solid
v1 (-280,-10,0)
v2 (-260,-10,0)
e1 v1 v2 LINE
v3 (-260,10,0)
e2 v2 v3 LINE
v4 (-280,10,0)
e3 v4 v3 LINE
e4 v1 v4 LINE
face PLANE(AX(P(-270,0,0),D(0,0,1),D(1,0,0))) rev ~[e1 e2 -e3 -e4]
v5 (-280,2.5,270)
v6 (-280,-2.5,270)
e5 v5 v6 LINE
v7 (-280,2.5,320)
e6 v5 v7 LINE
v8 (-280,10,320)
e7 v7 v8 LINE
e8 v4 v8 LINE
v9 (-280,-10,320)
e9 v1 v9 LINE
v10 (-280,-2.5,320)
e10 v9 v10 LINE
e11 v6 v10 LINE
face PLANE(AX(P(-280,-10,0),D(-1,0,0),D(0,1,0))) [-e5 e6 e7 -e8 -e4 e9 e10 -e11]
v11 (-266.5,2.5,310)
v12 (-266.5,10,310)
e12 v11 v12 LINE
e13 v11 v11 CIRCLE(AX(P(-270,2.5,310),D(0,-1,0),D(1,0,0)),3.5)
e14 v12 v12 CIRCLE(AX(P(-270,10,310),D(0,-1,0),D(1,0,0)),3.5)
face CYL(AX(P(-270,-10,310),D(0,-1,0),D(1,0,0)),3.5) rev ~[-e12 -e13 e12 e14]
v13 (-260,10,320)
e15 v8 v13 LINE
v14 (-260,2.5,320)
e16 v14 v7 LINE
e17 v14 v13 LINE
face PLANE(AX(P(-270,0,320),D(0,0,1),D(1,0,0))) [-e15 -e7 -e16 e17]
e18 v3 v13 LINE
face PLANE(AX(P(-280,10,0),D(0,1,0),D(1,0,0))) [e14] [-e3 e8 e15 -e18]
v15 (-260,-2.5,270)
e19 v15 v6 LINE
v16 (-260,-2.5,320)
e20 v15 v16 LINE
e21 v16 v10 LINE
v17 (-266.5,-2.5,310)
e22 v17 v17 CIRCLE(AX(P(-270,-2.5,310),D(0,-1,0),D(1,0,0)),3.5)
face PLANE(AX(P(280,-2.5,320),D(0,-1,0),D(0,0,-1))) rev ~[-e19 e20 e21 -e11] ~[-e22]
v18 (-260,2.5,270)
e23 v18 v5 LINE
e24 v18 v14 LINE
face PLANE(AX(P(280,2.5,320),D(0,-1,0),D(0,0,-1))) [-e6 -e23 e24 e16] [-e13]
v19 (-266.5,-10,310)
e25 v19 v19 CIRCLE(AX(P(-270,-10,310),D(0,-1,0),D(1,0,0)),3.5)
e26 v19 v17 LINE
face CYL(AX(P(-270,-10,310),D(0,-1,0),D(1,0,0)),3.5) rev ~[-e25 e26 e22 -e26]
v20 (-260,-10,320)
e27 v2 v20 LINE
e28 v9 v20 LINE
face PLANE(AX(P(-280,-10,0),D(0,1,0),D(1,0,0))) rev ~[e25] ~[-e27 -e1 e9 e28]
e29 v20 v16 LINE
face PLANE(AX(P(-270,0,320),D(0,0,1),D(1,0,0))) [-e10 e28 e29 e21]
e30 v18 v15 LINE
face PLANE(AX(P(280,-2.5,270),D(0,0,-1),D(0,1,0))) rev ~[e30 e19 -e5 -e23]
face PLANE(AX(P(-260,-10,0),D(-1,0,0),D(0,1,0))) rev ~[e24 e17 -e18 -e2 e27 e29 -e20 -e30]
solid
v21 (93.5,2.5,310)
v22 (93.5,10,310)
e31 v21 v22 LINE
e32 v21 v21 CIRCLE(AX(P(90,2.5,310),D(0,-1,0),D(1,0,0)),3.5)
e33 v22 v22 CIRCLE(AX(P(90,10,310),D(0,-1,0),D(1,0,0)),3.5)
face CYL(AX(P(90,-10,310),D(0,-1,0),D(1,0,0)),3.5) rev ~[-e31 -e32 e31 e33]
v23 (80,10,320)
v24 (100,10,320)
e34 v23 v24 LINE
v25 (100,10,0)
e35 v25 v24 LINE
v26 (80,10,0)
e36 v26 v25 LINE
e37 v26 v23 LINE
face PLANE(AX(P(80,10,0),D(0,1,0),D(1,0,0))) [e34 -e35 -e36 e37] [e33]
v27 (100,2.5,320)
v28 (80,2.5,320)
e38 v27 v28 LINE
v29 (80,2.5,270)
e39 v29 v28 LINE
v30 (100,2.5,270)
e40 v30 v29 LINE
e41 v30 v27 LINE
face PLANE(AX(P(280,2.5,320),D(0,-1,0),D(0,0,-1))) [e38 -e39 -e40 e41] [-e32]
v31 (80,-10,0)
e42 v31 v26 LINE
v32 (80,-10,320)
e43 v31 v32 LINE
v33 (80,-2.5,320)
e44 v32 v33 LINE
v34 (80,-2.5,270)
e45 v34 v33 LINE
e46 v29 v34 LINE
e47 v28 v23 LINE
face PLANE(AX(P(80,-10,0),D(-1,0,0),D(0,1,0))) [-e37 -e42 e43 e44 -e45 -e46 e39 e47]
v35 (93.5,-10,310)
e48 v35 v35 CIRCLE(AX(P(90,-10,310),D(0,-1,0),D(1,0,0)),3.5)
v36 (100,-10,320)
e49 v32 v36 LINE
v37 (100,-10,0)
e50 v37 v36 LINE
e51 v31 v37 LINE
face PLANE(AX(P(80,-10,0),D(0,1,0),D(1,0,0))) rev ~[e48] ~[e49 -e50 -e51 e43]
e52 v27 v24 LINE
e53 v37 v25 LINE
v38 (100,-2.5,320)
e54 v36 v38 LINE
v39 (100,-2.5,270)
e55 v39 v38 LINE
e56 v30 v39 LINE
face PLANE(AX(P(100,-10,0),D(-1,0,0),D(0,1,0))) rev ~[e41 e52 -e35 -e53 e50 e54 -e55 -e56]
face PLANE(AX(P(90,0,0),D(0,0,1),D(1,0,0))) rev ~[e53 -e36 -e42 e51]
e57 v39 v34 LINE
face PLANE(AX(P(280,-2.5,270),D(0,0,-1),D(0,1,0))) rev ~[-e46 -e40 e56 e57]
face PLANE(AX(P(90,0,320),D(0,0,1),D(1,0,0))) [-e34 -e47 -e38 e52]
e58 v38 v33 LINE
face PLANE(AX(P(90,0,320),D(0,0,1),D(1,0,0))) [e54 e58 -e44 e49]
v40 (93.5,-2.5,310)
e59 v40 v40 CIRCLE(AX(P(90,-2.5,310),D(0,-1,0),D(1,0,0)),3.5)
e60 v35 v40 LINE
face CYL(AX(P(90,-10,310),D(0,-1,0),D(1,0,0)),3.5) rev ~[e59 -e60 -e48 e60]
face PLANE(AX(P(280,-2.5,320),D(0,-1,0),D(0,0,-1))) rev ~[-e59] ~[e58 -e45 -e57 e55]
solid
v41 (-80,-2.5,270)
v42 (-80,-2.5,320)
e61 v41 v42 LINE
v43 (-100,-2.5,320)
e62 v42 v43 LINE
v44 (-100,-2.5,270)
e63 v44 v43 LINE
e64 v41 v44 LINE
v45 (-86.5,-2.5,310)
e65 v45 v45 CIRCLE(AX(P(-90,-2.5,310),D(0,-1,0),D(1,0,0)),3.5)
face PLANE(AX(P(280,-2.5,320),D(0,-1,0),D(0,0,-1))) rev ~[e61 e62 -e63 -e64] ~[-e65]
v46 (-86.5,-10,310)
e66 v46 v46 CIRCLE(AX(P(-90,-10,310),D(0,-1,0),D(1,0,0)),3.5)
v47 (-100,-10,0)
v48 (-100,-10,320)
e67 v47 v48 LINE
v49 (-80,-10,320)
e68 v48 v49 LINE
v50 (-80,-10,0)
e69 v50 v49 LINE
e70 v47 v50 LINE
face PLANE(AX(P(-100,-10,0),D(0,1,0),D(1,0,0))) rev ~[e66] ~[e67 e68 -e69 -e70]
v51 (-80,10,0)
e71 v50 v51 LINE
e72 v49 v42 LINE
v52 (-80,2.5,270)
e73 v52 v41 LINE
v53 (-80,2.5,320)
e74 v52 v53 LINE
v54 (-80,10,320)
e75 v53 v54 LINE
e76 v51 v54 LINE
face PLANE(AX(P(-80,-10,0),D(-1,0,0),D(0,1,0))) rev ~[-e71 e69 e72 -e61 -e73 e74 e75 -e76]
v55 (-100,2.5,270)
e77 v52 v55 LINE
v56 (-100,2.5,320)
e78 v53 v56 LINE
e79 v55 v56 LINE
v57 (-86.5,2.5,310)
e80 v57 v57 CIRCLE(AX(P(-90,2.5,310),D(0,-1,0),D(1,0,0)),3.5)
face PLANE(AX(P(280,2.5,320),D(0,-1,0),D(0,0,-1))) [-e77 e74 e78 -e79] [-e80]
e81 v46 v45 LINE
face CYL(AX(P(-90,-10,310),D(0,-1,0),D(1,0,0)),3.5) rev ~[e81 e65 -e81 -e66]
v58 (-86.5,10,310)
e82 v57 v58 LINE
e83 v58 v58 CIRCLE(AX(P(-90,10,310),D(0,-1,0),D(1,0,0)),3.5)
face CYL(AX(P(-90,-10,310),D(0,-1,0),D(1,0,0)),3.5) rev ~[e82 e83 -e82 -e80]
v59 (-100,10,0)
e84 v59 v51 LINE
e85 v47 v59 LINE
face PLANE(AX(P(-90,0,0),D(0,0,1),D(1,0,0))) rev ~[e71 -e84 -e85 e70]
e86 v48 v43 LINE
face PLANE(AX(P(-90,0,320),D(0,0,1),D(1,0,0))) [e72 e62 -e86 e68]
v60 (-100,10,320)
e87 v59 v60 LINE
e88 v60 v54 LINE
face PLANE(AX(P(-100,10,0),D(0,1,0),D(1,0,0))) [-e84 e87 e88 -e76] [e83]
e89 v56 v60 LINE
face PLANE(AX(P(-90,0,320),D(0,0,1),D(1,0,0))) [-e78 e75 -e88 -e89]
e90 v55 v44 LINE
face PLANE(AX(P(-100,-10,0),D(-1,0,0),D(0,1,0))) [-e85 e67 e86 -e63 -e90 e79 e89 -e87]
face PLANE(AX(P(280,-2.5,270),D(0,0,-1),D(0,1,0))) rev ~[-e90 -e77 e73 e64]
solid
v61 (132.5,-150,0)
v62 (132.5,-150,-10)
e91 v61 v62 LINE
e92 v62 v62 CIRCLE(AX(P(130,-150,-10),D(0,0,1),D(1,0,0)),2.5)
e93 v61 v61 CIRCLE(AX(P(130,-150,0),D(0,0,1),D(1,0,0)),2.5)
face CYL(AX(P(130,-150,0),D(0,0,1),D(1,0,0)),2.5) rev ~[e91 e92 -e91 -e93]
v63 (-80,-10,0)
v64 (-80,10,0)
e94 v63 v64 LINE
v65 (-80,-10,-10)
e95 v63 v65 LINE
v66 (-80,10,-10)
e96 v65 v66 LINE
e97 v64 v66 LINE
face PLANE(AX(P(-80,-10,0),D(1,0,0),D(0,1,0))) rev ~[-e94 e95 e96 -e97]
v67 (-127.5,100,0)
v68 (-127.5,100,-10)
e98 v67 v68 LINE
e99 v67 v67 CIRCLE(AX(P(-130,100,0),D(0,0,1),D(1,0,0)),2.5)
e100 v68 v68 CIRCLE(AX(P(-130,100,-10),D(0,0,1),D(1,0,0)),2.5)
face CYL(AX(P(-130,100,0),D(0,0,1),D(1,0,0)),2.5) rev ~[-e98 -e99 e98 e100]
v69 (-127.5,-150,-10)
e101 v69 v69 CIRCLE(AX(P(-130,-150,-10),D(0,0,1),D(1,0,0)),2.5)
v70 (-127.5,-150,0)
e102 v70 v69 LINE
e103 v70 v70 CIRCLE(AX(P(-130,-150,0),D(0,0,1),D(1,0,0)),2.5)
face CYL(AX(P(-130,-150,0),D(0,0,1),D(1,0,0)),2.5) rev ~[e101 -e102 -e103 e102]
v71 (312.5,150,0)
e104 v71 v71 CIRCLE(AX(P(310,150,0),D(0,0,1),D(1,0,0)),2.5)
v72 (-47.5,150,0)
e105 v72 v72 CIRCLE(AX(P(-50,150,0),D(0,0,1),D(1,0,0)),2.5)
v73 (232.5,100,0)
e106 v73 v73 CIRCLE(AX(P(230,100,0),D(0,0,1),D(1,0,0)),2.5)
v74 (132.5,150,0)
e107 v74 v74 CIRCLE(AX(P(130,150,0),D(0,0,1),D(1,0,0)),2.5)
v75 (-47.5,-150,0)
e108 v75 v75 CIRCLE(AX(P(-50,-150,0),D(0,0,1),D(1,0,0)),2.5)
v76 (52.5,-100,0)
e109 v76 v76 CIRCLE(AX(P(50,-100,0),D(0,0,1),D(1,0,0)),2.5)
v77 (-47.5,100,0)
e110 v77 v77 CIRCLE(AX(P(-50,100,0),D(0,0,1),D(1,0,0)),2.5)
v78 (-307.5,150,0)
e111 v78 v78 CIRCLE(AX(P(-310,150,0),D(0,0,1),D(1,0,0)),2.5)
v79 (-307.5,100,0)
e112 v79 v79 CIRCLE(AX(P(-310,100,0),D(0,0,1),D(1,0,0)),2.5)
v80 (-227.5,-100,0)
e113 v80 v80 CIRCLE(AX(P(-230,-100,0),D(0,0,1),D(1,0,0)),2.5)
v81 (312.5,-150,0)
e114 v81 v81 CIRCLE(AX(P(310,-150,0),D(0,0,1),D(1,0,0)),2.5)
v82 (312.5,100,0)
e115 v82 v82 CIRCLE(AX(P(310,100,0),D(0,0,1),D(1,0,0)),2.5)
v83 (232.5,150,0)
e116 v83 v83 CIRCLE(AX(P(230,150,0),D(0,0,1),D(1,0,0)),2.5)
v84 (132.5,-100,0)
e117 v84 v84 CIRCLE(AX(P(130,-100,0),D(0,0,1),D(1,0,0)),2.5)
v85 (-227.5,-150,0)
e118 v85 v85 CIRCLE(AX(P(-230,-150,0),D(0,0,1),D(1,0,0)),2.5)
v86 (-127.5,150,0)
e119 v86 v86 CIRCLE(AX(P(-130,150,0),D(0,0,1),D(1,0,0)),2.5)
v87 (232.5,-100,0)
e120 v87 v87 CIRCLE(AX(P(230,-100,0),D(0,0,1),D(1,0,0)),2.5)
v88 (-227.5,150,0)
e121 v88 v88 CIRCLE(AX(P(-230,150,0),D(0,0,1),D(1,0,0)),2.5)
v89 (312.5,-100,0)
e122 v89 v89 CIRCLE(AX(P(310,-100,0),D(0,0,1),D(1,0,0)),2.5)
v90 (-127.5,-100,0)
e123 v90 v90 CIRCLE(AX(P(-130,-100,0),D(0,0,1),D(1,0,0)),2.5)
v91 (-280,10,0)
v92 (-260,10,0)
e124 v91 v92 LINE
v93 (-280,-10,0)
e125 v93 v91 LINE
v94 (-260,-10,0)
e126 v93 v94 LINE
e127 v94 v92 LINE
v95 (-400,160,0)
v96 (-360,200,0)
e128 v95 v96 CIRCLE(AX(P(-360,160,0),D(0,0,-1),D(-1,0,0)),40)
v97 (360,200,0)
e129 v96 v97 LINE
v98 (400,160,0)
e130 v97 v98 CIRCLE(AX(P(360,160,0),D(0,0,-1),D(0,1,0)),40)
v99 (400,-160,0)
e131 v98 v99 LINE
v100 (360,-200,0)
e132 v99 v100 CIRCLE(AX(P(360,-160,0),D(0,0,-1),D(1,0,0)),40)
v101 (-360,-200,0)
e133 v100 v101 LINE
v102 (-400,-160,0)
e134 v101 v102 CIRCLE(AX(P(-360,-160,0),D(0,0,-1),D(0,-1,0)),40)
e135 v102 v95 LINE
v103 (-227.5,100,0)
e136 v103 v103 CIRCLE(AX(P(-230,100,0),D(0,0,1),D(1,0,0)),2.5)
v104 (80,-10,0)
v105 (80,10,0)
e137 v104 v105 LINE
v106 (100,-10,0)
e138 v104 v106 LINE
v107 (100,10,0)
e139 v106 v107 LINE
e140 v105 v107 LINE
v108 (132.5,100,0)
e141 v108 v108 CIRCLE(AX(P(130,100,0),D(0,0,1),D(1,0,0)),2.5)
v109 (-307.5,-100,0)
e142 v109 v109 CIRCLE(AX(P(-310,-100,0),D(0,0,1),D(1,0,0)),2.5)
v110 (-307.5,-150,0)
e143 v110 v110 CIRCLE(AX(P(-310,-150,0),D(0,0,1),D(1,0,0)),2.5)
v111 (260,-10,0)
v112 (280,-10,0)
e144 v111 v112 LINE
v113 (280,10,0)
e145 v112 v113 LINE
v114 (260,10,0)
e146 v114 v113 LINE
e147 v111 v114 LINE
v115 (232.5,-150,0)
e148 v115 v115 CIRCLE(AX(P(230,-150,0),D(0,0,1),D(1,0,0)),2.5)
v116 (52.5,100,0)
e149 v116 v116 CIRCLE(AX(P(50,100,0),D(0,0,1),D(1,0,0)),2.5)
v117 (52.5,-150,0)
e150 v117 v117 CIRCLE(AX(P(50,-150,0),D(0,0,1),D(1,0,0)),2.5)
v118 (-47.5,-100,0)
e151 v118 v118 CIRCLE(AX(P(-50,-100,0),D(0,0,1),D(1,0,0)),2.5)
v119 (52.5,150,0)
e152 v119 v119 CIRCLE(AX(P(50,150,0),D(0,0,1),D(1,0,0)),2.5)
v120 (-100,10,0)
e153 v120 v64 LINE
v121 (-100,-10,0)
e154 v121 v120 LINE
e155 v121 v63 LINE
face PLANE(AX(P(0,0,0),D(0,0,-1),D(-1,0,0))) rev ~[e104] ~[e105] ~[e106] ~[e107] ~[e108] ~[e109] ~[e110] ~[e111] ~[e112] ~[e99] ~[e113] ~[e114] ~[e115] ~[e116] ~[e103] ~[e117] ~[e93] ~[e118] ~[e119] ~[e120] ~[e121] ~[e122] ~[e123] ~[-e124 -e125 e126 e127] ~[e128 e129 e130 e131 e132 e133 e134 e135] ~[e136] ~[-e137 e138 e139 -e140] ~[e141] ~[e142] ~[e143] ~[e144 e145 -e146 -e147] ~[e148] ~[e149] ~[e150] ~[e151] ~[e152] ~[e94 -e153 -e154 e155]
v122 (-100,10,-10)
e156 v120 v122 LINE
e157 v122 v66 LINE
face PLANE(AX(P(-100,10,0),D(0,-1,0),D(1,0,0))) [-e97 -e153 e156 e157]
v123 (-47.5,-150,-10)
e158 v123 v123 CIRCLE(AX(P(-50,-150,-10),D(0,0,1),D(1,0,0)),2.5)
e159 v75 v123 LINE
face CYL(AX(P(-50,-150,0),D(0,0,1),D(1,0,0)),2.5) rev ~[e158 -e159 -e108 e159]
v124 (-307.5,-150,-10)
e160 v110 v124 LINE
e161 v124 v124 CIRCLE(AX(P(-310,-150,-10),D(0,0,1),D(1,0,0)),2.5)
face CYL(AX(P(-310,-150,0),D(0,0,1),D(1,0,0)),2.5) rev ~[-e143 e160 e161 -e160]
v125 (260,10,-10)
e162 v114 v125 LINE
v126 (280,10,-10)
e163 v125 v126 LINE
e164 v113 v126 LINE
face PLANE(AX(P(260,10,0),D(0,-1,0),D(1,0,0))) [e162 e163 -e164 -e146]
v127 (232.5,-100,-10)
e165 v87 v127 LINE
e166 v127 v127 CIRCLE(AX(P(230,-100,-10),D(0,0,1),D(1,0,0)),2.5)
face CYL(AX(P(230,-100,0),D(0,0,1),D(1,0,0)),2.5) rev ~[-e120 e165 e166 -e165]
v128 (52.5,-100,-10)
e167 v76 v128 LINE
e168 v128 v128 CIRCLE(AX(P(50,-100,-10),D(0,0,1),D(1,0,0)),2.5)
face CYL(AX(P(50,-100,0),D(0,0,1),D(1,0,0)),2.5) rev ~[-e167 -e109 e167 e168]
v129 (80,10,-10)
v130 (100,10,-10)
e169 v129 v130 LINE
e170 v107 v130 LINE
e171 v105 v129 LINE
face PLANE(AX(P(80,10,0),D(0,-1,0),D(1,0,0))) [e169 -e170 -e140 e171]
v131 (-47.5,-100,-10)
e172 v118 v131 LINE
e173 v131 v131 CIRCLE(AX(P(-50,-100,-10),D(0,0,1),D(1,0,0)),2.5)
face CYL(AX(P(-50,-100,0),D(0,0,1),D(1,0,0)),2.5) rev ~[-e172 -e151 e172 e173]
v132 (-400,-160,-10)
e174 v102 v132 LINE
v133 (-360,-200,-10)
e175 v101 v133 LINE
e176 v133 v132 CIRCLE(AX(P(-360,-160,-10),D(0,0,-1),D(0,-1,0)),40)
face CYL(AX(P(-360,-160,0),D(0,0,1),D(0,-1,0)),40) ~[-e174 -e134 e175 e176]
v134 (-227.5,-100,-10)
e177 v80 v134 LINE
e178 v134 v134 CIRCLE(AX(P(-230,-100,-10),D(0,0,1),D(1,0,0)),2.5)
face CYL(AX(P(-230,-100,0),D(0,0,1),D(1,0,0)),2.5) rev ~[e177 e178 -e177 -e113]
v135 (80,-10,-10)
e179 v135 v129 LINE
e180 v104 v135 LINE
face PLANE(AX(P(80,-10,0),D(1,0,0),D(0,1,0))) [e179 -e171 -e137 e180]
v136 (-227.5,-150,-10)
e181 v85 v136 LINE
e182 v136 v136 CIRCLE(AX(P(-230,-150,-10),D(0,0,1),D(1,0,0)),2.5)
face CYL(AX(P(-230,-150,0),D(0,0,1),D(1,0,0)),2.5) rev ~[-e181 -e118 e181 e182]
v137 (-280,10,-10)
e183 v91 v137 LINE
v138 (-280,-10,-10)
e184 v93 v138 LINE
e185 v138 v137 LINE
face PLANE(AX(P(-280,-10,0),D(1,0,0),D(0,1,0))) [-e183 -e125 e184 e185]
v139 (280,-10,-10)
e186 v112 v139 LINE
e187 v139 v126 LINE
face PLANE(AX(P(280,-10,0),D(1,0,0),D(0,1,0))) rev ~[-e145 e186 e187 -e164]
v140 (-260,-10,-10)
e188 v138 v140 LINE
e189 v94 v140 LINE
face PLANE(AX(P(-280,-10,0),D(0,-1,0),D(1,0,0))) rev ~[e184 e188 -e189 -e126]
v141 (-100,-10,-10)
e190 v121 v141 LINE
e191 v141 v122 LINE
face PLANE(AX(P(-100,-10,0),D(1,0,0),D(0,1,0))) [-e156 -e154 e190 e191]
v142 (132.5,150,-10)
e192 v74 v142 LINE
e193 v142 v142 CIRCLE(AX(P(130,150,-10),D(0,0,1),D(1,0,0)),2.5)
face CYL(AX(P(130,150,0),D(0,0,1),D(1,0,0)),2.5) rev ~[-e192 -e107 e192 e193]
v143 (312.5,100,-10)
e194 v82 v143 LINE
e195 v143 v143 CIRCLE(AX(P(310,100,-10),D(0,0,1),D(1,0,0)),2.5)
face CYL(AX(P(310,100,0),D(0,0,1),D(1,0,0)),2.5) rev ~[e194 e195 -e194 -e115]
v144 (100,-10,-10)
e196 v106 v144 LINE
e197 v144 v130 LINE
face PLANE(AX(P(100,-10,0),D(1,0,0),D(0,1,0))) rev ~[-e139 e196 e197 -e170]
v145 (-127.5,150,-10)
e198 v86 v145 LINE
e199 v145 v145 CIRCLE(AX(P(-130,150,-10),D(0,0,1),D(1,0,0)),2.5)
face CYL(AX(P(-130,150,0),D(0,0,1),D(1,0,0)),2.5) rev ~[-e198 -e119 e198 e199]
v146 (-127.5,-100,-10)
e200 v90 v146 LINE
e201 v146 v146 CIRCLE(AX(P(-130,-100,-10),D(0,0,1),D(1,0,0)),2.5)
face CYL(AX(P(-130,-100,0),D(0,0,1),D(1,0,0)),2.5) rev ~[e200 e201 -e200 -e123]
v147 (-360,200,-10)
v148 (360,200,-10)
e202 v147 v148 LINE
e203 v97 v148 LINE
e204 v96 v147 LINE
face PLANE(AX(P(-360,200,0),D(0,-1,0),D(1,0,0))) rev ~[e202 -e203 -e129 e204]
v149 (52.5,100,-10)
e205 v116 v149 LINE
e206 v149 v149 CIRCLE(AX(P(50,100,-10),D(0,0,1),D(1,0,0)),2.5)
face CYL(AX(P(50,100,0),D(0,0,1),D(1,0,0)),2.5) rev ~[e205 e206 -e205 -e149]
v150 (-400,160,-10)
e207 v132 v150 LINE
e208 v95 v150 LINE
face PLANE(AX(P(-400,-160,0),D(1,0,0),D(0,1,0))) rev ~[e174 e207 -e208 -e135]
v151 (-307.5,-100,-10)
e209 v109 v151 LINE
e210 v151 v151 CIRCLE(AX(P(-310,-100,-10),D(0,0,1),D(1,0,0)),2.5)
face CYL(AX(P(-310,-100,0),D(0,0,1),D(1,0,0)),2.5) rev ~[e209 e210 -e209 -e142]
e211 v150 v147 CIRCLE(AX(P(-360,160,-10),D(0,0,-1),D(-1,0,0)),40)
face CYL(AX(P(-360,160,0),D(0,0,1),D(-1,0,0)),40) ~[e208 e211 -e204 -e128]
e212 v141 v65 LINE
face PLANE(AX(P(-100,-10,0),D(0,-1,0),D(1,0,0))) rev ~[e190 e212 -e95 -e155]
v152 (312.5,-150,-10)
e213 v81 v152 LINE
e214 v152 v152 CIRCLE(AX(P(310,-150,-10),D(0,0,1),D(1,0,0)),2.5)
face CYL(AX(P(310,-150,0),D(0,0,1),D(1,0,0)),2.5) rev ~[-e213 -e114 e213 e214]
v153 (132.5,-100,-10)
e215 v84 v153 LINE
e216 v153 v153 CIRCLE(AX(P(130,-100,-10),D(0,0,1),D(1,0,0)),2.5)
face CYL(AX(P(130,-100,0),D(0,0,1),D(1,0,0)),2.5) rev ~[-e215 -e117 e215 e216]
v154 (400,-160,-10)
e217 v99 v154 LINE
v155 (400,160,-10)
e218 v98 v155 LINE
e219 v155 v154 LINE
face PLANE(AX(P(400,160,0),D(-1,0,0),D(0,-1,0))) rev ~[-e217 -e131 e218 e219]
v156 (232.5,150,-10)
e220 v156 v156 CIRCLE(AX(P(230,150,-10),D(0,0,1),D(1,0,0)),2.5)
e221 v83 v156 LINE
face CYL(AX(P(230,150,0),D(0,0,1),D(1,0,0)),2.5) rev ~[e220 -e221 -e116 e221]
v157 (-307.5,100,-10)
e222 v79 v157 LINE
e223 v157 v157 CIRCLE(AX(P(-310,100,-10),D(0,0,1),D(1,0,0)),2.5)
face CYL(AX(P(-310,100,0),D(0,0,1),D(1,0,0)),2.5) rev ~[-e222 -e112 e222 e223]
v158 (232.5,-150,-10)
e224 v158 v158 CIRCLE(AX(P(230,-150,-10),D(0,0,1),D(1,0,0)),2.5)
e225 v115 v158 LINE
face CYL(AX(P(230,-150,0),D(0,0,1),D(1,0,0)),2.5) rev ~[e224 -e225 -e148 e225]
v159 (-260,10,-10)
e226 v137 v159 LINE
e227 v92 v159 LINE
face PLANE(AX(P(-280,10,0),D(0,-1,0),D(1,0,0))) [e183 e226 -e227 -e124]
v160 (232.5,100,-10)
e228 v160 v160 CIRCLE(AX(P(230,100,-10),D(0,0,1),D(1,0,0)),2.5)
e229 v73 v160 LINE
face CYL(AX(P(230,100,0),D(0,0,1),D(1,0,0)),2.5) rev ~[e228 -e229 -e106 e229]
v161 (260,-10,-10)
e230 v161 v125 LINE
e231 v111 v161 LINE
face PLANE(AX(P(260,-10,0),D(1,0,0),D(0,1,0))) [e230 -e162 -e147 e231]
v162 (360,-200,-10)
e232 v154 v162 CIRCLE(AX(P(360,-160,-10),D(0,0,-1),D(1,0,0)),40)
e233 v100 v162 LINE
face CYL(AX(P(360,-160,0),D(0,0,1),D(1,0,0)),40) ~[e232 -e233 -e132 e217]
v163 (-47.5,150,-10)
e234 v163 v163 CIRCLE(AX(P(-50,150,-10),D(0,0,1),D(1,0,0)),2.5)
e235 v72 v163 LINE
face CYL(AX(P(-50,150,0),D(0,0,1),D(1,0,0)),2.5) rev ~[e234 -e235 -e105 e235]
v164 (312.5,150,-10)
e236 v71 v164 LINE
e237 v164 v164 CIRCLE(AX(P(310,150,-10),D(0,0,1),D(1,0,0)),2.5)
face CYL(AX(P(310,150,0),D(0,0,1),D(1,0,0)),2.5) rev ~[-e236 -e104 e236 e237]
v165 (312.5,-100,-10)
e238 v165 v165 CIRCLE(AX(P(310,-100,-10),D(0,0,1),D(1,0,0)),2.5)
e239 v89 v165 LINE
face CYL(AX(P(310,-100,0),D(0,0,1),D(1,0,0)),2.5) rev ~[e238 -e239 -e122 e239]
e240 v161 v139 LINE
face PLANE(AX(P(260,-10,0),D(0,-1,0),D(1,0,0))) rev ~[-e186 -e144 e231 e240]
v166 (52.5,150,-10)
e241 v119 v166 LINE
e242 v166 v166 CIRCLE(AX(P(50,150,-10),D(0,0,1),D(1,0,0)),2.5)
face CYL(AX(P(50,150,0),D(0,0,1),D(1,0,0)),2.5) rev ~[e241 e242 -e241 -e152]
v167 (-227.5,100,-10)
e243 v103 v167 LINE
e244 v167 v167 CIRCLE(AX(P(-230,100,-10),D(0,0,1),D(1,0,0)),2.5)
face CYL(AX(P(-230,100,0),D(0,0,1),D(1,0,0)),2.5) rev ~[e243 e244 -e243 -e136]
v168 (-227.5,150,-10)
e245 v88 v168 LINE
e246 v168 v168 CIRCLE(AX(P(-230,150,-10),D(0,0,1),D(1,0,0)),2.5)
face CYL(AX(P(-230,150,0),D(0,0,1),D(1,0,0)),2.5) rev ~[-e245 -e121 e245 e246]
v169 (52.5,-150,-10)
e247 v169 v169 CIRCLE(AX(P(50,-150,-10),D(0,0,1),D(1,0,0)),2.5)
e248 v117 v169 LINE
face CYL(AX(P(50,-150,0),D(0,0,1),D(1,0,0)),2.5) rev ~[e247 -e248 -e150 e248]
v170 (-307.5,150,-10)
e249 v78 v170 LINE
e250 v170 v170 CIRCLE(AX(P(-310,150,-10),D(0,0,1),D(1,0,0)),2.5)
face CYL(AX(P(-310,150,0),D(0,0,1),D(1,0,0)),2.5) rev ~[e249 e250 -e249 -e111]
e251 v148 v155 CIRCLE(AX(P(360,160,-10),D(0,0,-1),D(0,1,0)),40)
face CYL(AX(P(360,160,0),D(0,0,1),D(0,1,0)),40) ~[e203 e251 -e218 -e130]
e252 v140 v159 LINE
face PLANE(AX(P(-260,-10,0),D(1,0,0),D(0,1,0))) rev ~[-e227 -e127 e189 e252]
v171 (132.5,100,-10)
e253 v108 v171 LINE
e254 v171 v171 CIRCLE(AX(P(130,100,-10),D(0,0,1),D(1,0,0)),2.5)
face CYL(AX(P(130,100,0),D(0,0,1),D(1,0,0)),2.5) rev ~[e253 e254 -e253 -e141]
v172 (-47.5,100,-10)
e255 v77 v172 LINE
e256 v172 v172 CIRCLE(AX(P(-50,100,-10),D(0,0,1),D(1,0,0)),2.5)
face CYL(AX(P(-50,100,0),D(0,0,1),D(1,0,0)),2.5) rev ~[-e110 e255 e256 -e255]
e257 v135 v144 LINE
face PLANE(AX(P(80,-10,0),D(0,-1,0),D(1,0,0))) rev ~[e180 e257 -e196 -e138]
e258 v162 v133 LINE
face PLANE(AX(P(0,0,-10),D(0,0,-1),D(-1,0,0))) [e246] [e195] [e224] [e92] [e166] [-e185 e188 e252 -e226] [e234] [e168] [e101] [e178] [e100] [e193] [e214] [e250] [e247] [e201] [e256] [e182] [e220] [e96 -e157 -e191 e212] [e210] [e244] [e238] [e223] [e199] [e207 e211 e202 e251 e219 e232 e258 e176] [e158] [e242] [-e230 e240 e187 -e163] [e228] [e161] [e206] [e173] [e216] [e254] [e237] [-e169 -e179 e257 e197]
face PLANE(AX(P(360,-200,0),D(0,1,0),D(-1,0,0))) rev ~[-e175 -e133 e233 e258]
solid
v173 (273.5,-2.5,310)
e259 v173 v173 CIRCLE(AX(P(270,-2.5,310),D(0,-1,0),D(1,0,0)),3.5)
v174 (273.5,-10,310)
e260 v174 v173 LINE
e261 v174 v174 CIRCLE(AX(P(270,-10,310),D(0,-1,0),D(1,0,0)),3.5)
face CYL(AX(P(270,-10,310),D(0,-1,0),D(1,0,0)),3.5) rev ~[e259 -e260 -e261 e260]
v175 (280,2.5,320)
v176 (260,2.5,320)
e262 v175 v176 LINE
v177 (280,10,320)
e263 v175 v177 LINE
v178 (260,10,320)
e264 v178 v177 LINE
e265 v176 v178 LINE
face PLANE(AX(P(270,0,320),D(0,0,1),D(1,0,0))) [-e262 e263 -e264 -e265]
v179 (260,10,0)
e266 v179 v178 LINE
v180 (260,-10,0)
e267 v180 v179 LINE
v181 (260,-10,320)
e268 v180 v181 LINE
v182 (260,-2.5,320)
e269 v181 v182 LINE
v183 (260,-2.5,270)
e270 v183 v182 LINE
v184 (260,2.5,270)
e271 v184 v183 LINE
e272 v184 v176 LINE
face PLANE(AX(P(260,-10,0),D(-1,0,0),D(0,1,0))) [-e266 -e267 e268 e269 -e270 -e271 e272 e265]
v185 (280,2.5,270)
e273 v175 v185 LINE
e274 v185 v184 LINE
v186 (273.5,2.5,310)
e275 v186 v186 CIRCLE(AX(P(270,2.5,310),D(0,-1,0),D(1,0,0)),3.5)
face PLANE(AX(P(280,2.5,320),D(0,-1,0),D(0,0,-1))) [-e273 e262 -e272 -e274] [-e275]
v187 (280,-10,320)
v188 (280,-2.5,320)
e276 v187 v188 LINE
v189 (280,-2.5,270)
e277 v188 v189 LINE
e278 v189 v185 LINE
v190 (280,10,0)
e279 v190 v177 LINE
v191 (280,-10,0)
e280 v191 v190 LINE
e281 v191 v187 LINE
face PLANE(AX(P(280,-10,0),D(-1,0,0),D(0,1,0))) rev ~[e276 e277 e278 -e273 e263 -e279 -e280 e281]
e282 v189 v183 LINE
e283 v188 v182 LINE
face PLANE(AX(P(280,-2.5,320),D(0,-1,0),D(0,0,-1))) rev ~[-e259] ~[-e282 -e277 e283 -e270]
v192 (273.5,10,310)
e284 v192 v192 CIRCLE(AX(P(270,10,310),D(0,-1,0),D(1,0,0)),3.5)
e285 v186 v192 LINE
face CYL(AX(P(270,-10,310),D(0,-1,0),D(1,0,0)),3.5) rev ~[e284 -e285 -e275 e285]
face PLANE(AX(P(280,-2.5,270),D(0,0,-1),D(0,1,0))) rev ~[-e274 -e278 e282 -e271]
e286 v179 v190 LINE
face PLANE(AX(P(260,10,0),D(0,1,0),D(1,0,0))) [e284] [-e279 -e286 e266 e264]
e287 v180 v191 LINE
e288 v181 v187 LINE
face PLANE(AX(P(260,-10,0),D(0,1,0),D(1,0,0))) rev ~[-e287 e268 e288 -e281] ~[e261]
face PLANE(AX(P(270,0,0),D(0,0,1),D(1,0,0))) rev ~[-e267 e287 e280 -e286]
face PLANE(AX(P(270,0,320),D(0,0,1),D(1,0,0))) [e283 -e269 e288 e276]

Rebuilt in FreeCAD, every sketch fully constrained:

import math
import FreeCAD as App
import Part
import Sketcher

V = App.Vector
Q = App.Units.Quantity

doc = App.newDocument("Part")
params = doc.addObject("Spreadsheet::Sheet", "Params")
for row, (alias, value) in enumerate([
    ("sketch1_diameter", "5 mm"),
    ("sketch1_radius", "40 mm"),
    ("sketch1_width", "720 mm"),
    ("sketch1_width2", "20 mm"),
    ("sketch1_height", "320 mm"),
    ("pad1_length", "10 mm"),
    ("sketch2_width", "20 mm"),
    ("pad2_length", "320 mm"),
    ("sketch3_width", "20 mm"),
    ("pad3_length", "320 mm"),
    ("sketch4_width", "20 mm"),
    ("pad4_length", "320 mm"),
    ("sketch5_width", "20 mm"),
    ("pad5_length", "320 mm"),
    ("sketch6_diameter", "7 mm"),
    ("pad6_length", "210 mm"),
    ("sketch7_width", "5 mm"),
    ("sketch7_height", "50 mm"),
    ("pad7_length", "778.688884 mm"),
], start=1):
    params.set(f"A{row}", alias)
    params.set(f"B{row}", "=" + value)
    params.setAlias(f"B{row}", alias)

body = doc.addObject("PartDesign::Body", "Body")

# Sketch on XY plane
sketch1 = body.newObject("Sketcher::SketchObject", "Sketch")
sketch1.AttachmentSupport = (doc.getObject("XY_Plane"), [""])
sketch1.MapMode = "FlatFace"
sketch1.addGeometry(Part.LineSegment(V(360, 200, 0), V(-360, 200, 0)), False)
sketch1.addGeometry(Part.ArcOfCircle(Part.Circle(V(-360, 160, 0), V(0, 0, 1), 40), math.radians(90), math.radians(180)), False)
sketch1.addGeometry(Part.LineSegment(V(-400, 160, 0), V(-400, -160, 0)), False)
sketch1.addGeometry(Part.ArcOfCircle(Part.Circle(V(-360, -160, 0), V(0, 0, 1), 40), math.radians(-180), math.radians(-90)), False)
sketch1.addGeometry(Part.LineSegment(V(-360, -200, 0), V(360, -200, 0)), False)
sketch1.addGeometry(Part.ArcOfCircle(Part.Circle(V(360, -160, 0), V(0, 0, 1), 40), math.radians(-90), math.radians(0)), False)
sketch1.addGeometry(Part.LineSegment(V(400, -160, 0), V(400, 160, 0)), False)
sketch1.addGeometry(Part.ArcOfCircle(Part.Circle(V(360, 160, 0), V(0, 0, 1), 40), math.radians(0), math.radians(90)), False)
sketch1.addGeometry(Part.Circle(V(310, -150, 0), V(0, 0, 1), 2.5), False)
sketch1.addGeometry(Part.Circle(V(230, -150, 0), V(0, 0, 1), 2.5), False)
sketch1.addGeometry(Part.Circle(V(310, -100, 0), V(0, 0, 1), 2.5), False)
sketch1.addGeometry(Part.Circle(V(230, -100, 0), V(0, 0, 1), 2.5), False)
sketch1.addGeometry(Part.Circle(V(130, -150, 0), V(0, 0, 1), 2.5), False)
sketch1.addGeometry(Part.Circle(V(50, -150, 0), V(0, 0, 1), 2.5), False)
sketch1.addGeometry(Part.Circle(V(130, -100, 0), V(0, 0, 1), 2.5), False)
sketch1.addGeometry(Part.Circle(V(50, -100, 0), V(0, 0, 1), 2.5), False)
sketch1.addGeometry(Part.Circle(V(-50, -150, 0), V(0, 0, 1), 2.5), False)
sketch1.addGeometry(Part.Circle(V(-130, -150, 0), V(0, 0, 1), 2.5), False)
sketch1.addGeometry(Part.Circle(V(-50, -100, 0), V(0, 0, 1), 2.5), False)
sketch1.addGeometry(Part.Circle(V(-130, -100, 0), V(0, 0, 1), 2.5), False)
sketch1.addGeometry(Part.Circle(V(-230, -150, 0), V(0, 0, 1), 2.5), False)
sketch1.addGeometry(Part.Circle(V(-310, -150, 0), V(0, 0, 1), 2.5), False)
sketch1.addGeometry(Part.Circle(V(-230, -100, 0), V(0, 0, 1), 2.5), False)
sketch1.addGeometry(Part.Circle(V(-310, -100, 0), V(0, 0, 1), 2.5), False)
sketch1.addGeometry(Part.LineSegment(V(260, -10, 0), V(260, 10, 0)), False)
sketch1.addGeometry(Part.LineSegment(V(260, 10, 0), V(280, 10, 0)), False)
sketch1.addGeometry(Part.LineSegment(V(280, 10, 0), V(280, -10, 0)), False)
sketch1.addGeometry(Part.LineSegment(V(280, -10, 0), V(260, -10, 0)), False)
sketch1.addGeometry(Part.LineSegment(V(80, -10, 0), V(80, 10, 0)), False)
sketch1.addGeometry(Part.LineSegment(V(80, 10, 0), V(100, 10, 0)), False)
sketch1.addGeometry(Part.LineSegment(V(100, 10, 0), V(100, -10, 0)), False)
sketch1.addGeometry(Part.LineSegment(V(100, -10, 0), V(80, -10, 0)), False)
sketch1.addGeometry(Part.Circle(V(310, 100, 0), V(0, 0, 1), 2.5), False)
sketch1.addGeometry(Part.Circle(V(230, 100, 0), V(0, 0, 1), 2.5), False)
sketch1.addGeometry(Part.Circle(V(310, 150, 0), V(0, 0, 1), 2.5), False)
sketch1.addGeometry(Part.Circle(V(230, 150, 0), V(0, 0, 1), 2.5), False)
sketch1.addGeometry(Part.Circle(V(130, 100, 0), V(0, 0, 1), 2.5), False)
sketch1.addGeometry(Part.Circle(V(50, 100, 0), V(0, 0, 1), 2.5), False)
sketch1.addGeometry(Part.Circle(V(130, 150, 0), V(0, 0, 1), 2.5), False)
sketch1.addGeometry(Part.Circle(V(50, 150, 0), V(0, 0, 1), 2.5), False)
sketch1.addGeometry(Part.LineSegment(V(-100, -10, 0), V(-100, 10, 0)), False)
sketch1.addGeometry(Part.LineSegment(V(-100, 10, 0), V(-80, 10, 0)), False)
sketch1.addGeometry(Part.LineSegment(V(-80, 10, 0), V(-80, -10, 0)), False)
sketch1.addGeometry(Part.LineSegment(V(-80, -10, 0), V(-100, -10, 0)), False)
sketch1.addGeometry(Part.LineSegment(V(-280, -10, 0), V(-280, 10, 0)), False)
sketch1.addGeometry(Part.LineSegment(V(-280, 10, 0), V(-260, 10, 0)), False)
sketch1.addGeometry(Part.LineSegment(V(-260, 10, 0), V(-260, -10, 0)), False)
sketch1.addGeometry(Part.LineSegment(V(-260, -10, 0), V(-280, -10, 0)), False)
sketch1.addGeometry(Part.Circle(V(-50, 100, 0), V(0, 0, 1), 2.5), False)
sketch1.addGeometry(Part.Circle(V(-130, 100, 0), V(0, 0, 1), 2.5), False)
sketch1.addGeometry(Part.Circle(V(-50, 150, 0), V(0, 0, 1), 2.5), False)
sketch1.addGeometry(Part.Circle(V(-130, 150, 0), V(0, 0, 1), 2.5), False)
sketch1.addGeometry(Part.Circle(V(-230, 100, 0), V(0, 0, 1), 2.5), False)
sketch1.addGeometry(Part.Circle(V(-310, 100, 0), V(0, 0, 1), 2.5), False)
sketch1.addGeometry(Part.Circle(V(-230, 150, 0), V(0, 0, 1), 2.5), False)
sketch1.addGeometry(Part.Circle(V(-310, 150, 0), V(0, 0, 1), 2.5), False)
sketch1.addConstraint(Sketcher.Constraint("Tangent", 0, 2, 1, 1))
sketch1.addConstraint(Sketcher.Constraint("Tangent", 1, 2, 2, 1))
sketch1.addConstraint(Sketcher.Constraint("Tangent", 2, 2, 3, 1))
sketch1.addConstraint(Sketcher.Constraint("Tangent", 3, 2, 4, 1))
sketch1.addConstraint(Sketcher.Constraint("Tangent", 4, 2, 5, 1))
sketch1.addConstraint(Sketcher.Constraint("Tangent", 5, 2, 6, 1))
sketch1.addConstraint(Sketcher.Constraint("Tangent", 6, 2, 7, 1))
sketch1.addConstraint(Sketcher.Constraint("Tangent", 7, 2, 0, 1))
sketch1.addConstraint(Sketcher.Constraint("Coincident", 24, 2, 25, 1))
sketch1.addConstraint(Sketcher.Constraint("Coincident", 25, 2, 26, 1))
sketch1.addConstraint(Sketcher.Constraint("Coincident", 26, 2, 27, 1))
sketch1.addConstraint(Sketcher.Constraint("Coincident", 27, 2, 24, 1))
sketch1.addConstraint(Sketcher.Constraint("Coincident", 28, 2, 29, 1))
sketch1.addConstraint(Sketcher.Constraint("Coincident", 29, 2, 30, 1))
sketch1.addConstraint(Sketcher.Constraint("Coincident", 30, 2, 31, 1))
sketch1.addConstraint(Sketcher.Constraint("Coincident", 31, 2, 28, 1))
sketch1.addConstraint(Sketcher.Constraint("Coincident", 40, 2, 41, 1))
sketch1.addConstraint(Sketcher.Constraint("Coincident", 41, 2, 42, 1))
sketch1.addConstraint(Sketcher.Constraint("Coincident", 42, 2, 43, 1))
sketch1.addConstraint(Sketcher.Constraint("Coincident", 43, 2, 40, 1))
sketch1.addConstraint(Sketcher.Constraint("Coincident", 44, 2, 45, 1))
sketch1.addConstraint(Sketcher.Constraint("Coincident", 45, 2, 46, 1))
sketch1.addConstraint(Sketcher.Constraint("Coincident", 46, 2, 47, 1))
sketch1.addConstraint(Sketcher.Constraint("Coincident", 47, 2, 44, 1))
sketch1.addConstraint(Sketcher.Constraint("Horizontal", 0))
sketch1.addConstraint(Sketcher.Constraint("Vertical", 2))
sketch1.addConstraint(Sketcher.Constraint("Horizontal", 4))
sketch1.addConstraint(Sketcher.Constraint("Vertical", 6))
sketch1.addConstraint(Sketcher.Constraint("Vertical", 24))
sketch1.addConstraint(Sketcher.Constraint("Horizontal", 25))
sketch1.addConstraint(Sketcher.Constraint("Vertical", 26))
sketch1.addConstraint(Sketcher.Constraint("Horizontal", 27))
sketch1.addConstraint(Sketcher.Constraint("Vertical", 28))
sketch1.addConstraint(Sketcher.Constraint("Horizontal", 29))
sketch1.addConstraint(Sketcher.Constraint("Vertical", 30))
sketch1.addConstraint(Sketcher.Constraint("Horizontal", 31))
sketch1.addConstraint(Sketcher.Constraint("Vertical", 40))
sketch1.addConstraint(Sketcher.Constraint("Horizontal", 41))
sketch1.addConstraint(Sketcher.Constraint("Vertical", 42))
sketch1.addConstraint(Sketcher.Constraint("Horizontal", 43))
sketch1.addConstraint(Sketcher.Constraint("Vertical", 44))
sketch1.addConstraint(Sketcher.Constraint("Horizontal", 45))
sketch1.addConstraint(Sketcher.Constraint("Vertical", 46))
sketch1.addConstraint(Sketcher.Constraint("Horizontal", 47))
sketch1.addConstraint(Sketcher.Constraint("Equal", 1, 3))
sketch1.addConstraint(Sketcher.Constraint("Equal", 3, 5))
sketch1.addConstraint(Sketcher.Constraint("Equal", 5, 7))
sketch1.addConstraint(Sketcher.Constraint("Equal", 8, 9))
sketch1.addConstraint(Sketcher.Constraint("Equal", 9, 10))
sketch1.addConstraint(Sketcher.Constraint("Equal", 10, 11))
sketch1.addConstraint(Sketcher.Constraint("Equal", 11, 12))
sketch1.addConstraint(Sketcher.Constraint("Equal", 12, 13))
sketch1.addConstraint(Sketcher.Constraint("Equal", 13, 14))
sketch1.addConstraint(Sketcher.Constraint("Equal", 14, 15))
sketch1.addConstraint(Sketcher.Constraint("Equal", 15, 16))
sketch1.addConstraint(Sketcher.Constraint("Equal", 16, 17))
sketch1.addConstraint(Sketcher.Constraint("Equal", 17, 18))
sketch1.addConstraint(Sketcher.Constraint("Equal", 18, 19))
sketch1.addConstraint(Sketcher.Constraint("Equal", 19, 20))
sketch1.addConstraint(Sketcher.Constraint("Equal", 20, 21))
sketch1.addConstraint(Sketcher.Constraint("Equal", 21, 22))
sketch1.addConstraint(Sketcher.Constraint("Equal", 22, 23))
sketch1.addConstraint(Sketcher.Constraint("Equal", 23, 32))
sketch1.addConstraint(Sketcher.Constraint("Equal", 32, 33))
sketch1.addConstraint(Sketcher.Constraint("Equal", 33, 34))
sketch1.addConstraint(Sketcher.Constraint("Equal", 34, 35))
sketch1.addConstraint(Sketcher.Constraint("Equal", 35, 36))
sketch1.addConstraint(Sketcher.Constraint("Equal", 36, 37))
sketch1.addConstraint(Sketcher.Constraint("Equal", 37, 38))
sketch1.addConstraint(Sketcher.Constraint("Equal", 38, 39))
sketch1.addConstraint(Sketcher.Constraint("Equal", 39, 48))
sketch1.addConstraint(Sketcher.Constraint("Equal", 48, 49))
sketch1.addConstraint(Sketcher.Constraint("Equal", 49, 50))
sketch1.addConstraint(Sketcher.Constraint("Equal", 50, 51))
sketch1.addConstraint(Sketcher.Constraint("Equal", 51, 52))
sketch1.addConstraint(Sketcher.Constraint("Equal", 52, 53))
sketch1.addConstraint(Sketcher.Constraint("Equal", 53, 54))
sketch1.addConstraint(Sketcher.Constraint("Equal", 54, 55))
sketch1.addConstraint(Sketcher.Constraint("Symmetric", 1, 3, 5, 3, -1, 1))
sketch1.addConstraint(Sketcher.Constraint("Symmetric", 23, 3, 32, 3, -1, 1))
sketch1.addConstraint(Sketcher.Constraint("Symmetric", 22, 3, 33, 3, -1, 1))
sketch1.addConstraint(Sketcher.Constraint("Symmetric", 21, 3, 34, 3, -1, 1))
sketch1.addConstraint(Sketcher.Constraint("Symmetric", 20, 3, 35, 3, -1, 1))
sketch1.addConstraint(Sketcher.Constraint("Symmetric", 19, 3, 36, 3, -1, 1))
sketch1.addConstraint(Sketcher.Constraint("Symmetric", 18, 3, 37, 3, -1, 1))
sketch1.addConstraint(Sketcher.Constraint("Symmetric", 17, 3, 38, 3, -1, 1))
sketch1.addConstraint(Sketcher.Constraint("Symmetric", 16, 3, 39, 3, -1, 1))
sketch1.addConstraint(Sketcher.Constraint("Symmetric", 15, 3, 48, 3, -1, 1))
sketch1.addConstraint(Sketcher.Constraint("Symmetric", 14, 3, 49, 3, -1, 1))
sketch1.addConstraint(Sketcher.Constraint("Symmetric", 13, 3, 50, 3, -1, 1))
sketch1.addConstraint(Sketcher.Constraint("Symmetric", 12, 3, 51, 3, -1, 1))
sketch1.addConstraint(Sketcher.Constraint("Symmetric", 11, 3, 52, 3, -1, 1))
sketch1.addConstraint(Sketcher.Constraint("Symmetric", 10, 3, 53, 3, -1, 1))
sketch1.addConstraint(Sketcher.Constraint("Symmetric", 9, 3, 54, 3, -1, 1))
sketch1.addConstraint(Sketcher.Constraint("Symmetric", 8, 3, 55, 3, -1, 1))
sketch1.addConstraint(Sketcher.Constraint("Symmetric", 30, 2, 40, 2, -1, 1))
sketch1.addConstraint(Sketcher.Constraint("Symmetric", 28, 2, 42, 2, -1, 1))
sketch1.addConstraint(Sketcher.Constraint("Symmetric", 26, 2, 44, 2, -1, 1))
sketch1.addConstraint(Sketcher.Constraint("Symmetric", 24, 2, 46, 2, -1, 1))
sketch1.addConstraint(Sketcher.Constraint("Symmetric", 13, 3, 16, 3, -2))
sketch1.addConstraint(Sketcher.Constraint("Symmetric", 12, 3, 17, 3, -2))
sketch1.addConstraint(Sketcher.Constraint("Symmetric", 15, 3, 18, 3, -2))
sketch1.addConstraint(Sketcher.Constraint("Symmetric", 14, 3, 19, 3, -2))
sketch1.addConstraint(Sketcher.Constraint("Symmetric", 9, 3, 20, 3, -2))
sketch1.addConstraint(Sketcher.Constraint("Symmetric", 8, 3, 21, 3, -2))
sketch1.addConstraint(Sketcher.Constraint("Symmetric", 11, 3, 22, 3, -2))
sketch1.addConstraint(Sketcher.Constraint("Symmetric", 10, 3, 23, 3, -2))
sketch1.addConstraint(Sketcher.Constraint("Horizontal", 8, 3, 9, 3))
sketch1.addConstraint(Sketcher.Constraint("Horizontal", 10, 3, 11, 3))
sketch1.addConstraint(Sketcher.Constraint("Horizontal", 9, 3, 12, 3))
sketch1.addConstraint(Sketcher.Constraint("Horizontal", 12, 3, 13, 3))
sketch1.addConstraint(Sketcher.Constraint("Horizontal", 11, 3, 14, 3))
sketch1.addConstraint(Sketcher.Constraint("Horizontal", 14, 3, 15, 3))
sketch1.addConstraint(Sketcher.Constraint("Horizontal", 25, 2, 28, 2))
sketch1.addConstraint(Sketcher.Constraint("Horizontal", 27, 2, 30, 2))
sketch1.addConstraint(Sketcher.Constraint("Horizontal", 29, 2, 40, 2))
sketch1.addConstraint(Sketcher.Constraint("Vertical", 8, 3, 10, 3))
sketch1.addConstraint(Sketcher.Constraint("Vertical", 9, 3, 11, 3))
sketch1.addConstraint(Sketcher.Constraint("Vertical", 12, 3, 14, 3))
sketch1.addConstraint(Sketcher.Constraint("Vertical", 13, 3, 15, 3))
sketch1.addConstraint(Sketcher.Constraint("Equal", 27, 29))
sketch1.addConstraint(Sketcher.Constraint("Equal", 47, 24))
sketch1.addConstraint(Sketcher.Constraint("Diameter", 8, Q("5 mm")))
sketch1.addConstraint(Sketcher.Constraint("Radius", 1, Q("40 mm")))
sketch1.addConstraint(Sketcher.Constraint("DistanceX", 0, 2, 0, 1, Q("720 mm")))
sketch1.addConstraint(Sketcher.Constraint("DistanceX", 25, 1, 25, 2, Q("20 mm")))
sketch1.addConstraint(Sketcher.Constraint("DistanceY", 2, 2, 2, 1, Q("320 mm")))
sketch1.addConstraint(Sketcher.Constraint("DistanceX", -1, 1, 8, 3, Q("310 mm")))
sketch1.addConstraint(Sketcher.Constraint("DistanceY", 8, 3, -1, 1, Q("150 mm")))
sketch1.addConstraint(Sketcher.Constraint("DistanceX", -1, 1, 9, 3, Q("230 mm")))
sketch1.addConstraint(Sketcher.Constraint("DistanceY", 10, 3, -1, 1, Q("100 mm")))
sketch1.addConstraint(Sketcher.Constraint("DistanceX", -1, 1, 12, 3, Q("130 mm")))
sketch1.addConstraint(Sketcher.Constraint("DistanceX", -1, 1, 13, 3, Q("50 mm")))
sketch1.addConstraint(Sketcher.Constraint("DistanceX", -1, 1, 24, 2, Q("260 mm")))
sketch1.addConstraint(Sketcher.Constraint("DistanceX", -1, 1, 28, 2, Q("80 mm")))
sketch1.setExpression("Constraints[122]", "Params.sketch1_diameter")
sketch1.setExpression("Constraints[123]", "Params.sketch1_radius")
sketch1.setExpression("Constraints[124]", "Params.sketch1_width")
sketch1.setExpression("Constraints[125]", "Params.sketch1_width2")
sketch1.setExpression("Constraints[126]", "Params.sketch1_height")
pad1 = body.newObject("PartDesign::Pad", "Pad")
pad1.Profile = sketch1
pad1.setExpression("Length", "Params.pad1_length")
pad1.Reversed = True
body2 = doc.addObject("PartDesign::Body", "Body001")

# Sketch on XY plane
sketch2 = body2.newObject("Sketcher::SketchObject", "Sketch001")
sketch2.AttachmentSupport = (doc.getObject("XY_Plane001"), [""])
sketch2.MapMode = "FlatFace"
sketch2.addGeometry(Part.LineSegment(V(-280, 10, 0), V(-280, -10, 0)), False)
sketch2.addGeometry(Part.LineSegment(V(-280, -10, 0), V(-260, -10, 0)), False)
sketch2.addGeometry(Part.LineSegment(V(-260, -10, 0), V(-260, 10, 0)), False)
sketch2.addGeometry(Part.LineSegment(V(-260, 10, 0), V(-280, 10, 0)), False)
sketch2.addConstraint(Sketcher.Constraint("Coincident", 0, 2, 1, 1))
sketch2.addConstraint(Sketcher.Constraint("Coincident", 1, 2, 2, 1))
sketch2.addConstraint(Sketcher.Constraint("Coincident", 2, 2, 3, 1))
sketch2.addConstraint(Sketcher.Constraint("Coincident", 3, 2, 0, 1))
sketch2.addConstraint(Sketcher.Constraint("Vertical", 0))
sketch2.addConstraint(Sketcher.Constraint("Horizontal", 1))
sketch2.addConstraint(Sketcher.Constraint("Vertical", 2))
sketch2.addConstraint(Sketcher.Constraint("Horizontal", 3))
sketch2.addConstraint(Sketcher.Constraint("Equal", 3, 0))
sketch2.addConstraint(Sketcher.Constraint("DistanceX", 1, 1, 1, 2, Q("20 mm")))
sketch2.addConstraint(Sketcher.Constraint("DistanceX", 0, 2, -1, 1, Q("280 mm")))
sketch2.addConstraint(Sketcher.Constraint("DistanceY", 0, 2, -1, 1, Q("10 mm")))
sketch2.setExpression("Constraints[9]", "Params.sketch2_width")
pad2 = body2.newObject("PartDesign::Pad", "Pad001")
pad2.Profile = sketch2
pad2.setExpression("Length", "Params.pad2_length")
body3 = doc.addObject("PartDesign::Body", "Body002")

# Sketch on XY plane
sketch3 = body3.newObject("Sketcher::SketchObject", "Sketch002")
sketch3.AttachmentSupport = (doc.getObject("XY_Plane002"), [""])
sketch3.MapMode = "FlatFace"
sketch3.addGeometry(Part.LineSegment(V(-100, 10, 0), V(-100, -10, 0)), False)
sketch3.addGeometry(Part.LineSegment(V(-100, -10, 0), V(-80, -10, 0)), False)
sketch3.addGeometry(Part.LineSegment(V(-80, -10, 0), V(-80, 10, 0)), False)
sketch3.addGeometry(Part.LineSegment(V(-80, 10, 0), V(-100, 10, 0)), False)
sketch3.addConstraint(Sketcher.Constraint("Coincident", 0, 2, 1, 1))
sketch3.addConstraint(Sketcher.Constraint("Coincident", 1, 2, 2, 1))
sketch3.addConstraint(Sketcher.Constraint("Coincident", 2, 2, 3, 1))
sketch3.addConstraint(Sketcher.Constraint("Coincident", 3, 2, 0, 1))
sketch3.addConstraint(Sketcher.Constraint("Vertical", 0))
sketch3.addConstraint(Sketcher.Constraint("Horizontal", 1))
sketch3.addConstraint(Sketcher.Constraint("Vertical", 2))
sketch3.addConstraint(Sketcher.Constraint("Horizontal", 3))
sketch3.addConstraint(Sketcher.Constraint("Equal", 3, 0))
sketch3.addConstraint(Sketcher.Constraint("DistanceX", 1, 1, 1, 2, Q("20 mm")))
sketch3.addConstraint(Sketcher.Constraint("DistanceX", 0, 2, -1, 1, Q("100 mm")))
sketch3.addConstraint(Sketcher.Constraint("DistanceY", 0, 2, -1, 1, Q("10 mm")))
sketch3.setExpression("Constraints[9]", "Params.sketch3_width")
pad3 = body3.newObject("PartDesign::Pad", "Pad002")
pad3.Profile = sketch3
pad3.setExpression("Length", "Params.pad3_length")
body4 = doc.addObject("PartDesign::Body", "Body003")

# Sketch on XY plane
sketch4 = body4.newObject("Sketcher::SketchObject", "Sketch003")
sketch4.AttachmentSupport = (doc.getObject("XY_Plane003"), [""])
sketch4.MapMode = "FlatFace"
sketch4.addGeometry(Part.LineSegment(V(80, 10, 0), V(80, -10, 0)), False)
sketch4.addGeometry(Part.LineSegment(V(80, -10, 0), V(100, -10, 0)), False)
sketch4.addGeometry(Part.LineSegment(V(100, -10, 0), V(100, 10, 0)), False)
sketch4.addGeometry(Part.LineSegment(V(100, 10, 0), V(80, 10, 0)), False)
sketch4.addConstraint(Sketcher.Constraint("Coincident", 0, 2, 1, 1))
sketch4.addConstraint(Sketcher.Constraint("Coincident", 1, 2, 2, 1))
sketch4.addConstraint(Sketcher.Constraint("Coincident", 2, 2, 3, 1))
sketch4.addConstraint(Sketcher.Constraint("Coincident", 3, 2, 0, 1))
sketch4.addConstraint(Sketcher.Constraint("Vertical", 0))
sketch4.addConstraint(Sketcher.Constraint("Horizontal", 1))
sketch4.addConstraint(Sketcher.Constraint("Vertical", 2))
sketch4.addConstraint(Sketcher.Constraint("Horizontal", 3))
sketch4.addConstraint(Sketcher.Constraint("Equal", 3, 0))
sketch4.addConstraint(Sketcher.Constraint("DistanceX", 1, 1, 1, 2, Q("20 mm")))
sketch4.addConstraint(Sketcher.Constraint("DistanceX", -1, 1, 0, 2, Q("80 mm")))
sketch4.addConstraint(Sketcher.Constraint("DistanceY", 0, 2, -1, 1, Q("10 mm")))
sketch4.setExpression("Constraints[9]", "Params.sketch4_width")
pad4 = body4.newObject("PartDesign::Pad", "Pad003")
pad4.Profile = sketch4
pad4.setExpression("Length", "Params.pad4_length")
body5 = doc.addObject("PartDesign::Body", "Body004")

# Sketch on XY plane
sketch5 = body5.newObject("Sketcher::SketchObject", "Sketch004")
sketch5.AttachmentSupport = (doc.getObject("XY_Plane004"), [""])
sketch5.MapMode = "FlatFace"
sketch5.addGeometry(Part.LineSegment(V(260, 10, 0), V(260, -10, 0)), False)
sketch5.addGeometry(Part.LineSegment(V(260, -10, 0), V(280, -10, 0)), False)
sketch5.addGeometry(Part.LineSegment(V(280, -10, 0), V(280, 10, 0)), False)
sketch5.addGeometry(Part.LineSegment(V(280, 10, 0), V(260, 10, 0)), False)
sketch5.addConstraint(Sketcher.Constraint("Coincident", 0, 2, 1, 1))
sketch5.addConstraint(Sketcher.Constraint("Coincident", 1, 2, 2, 1))
sketch5.addConstraint(Sketcher.Constraint("Coincident", 2, 2, 3, 1))
sketch5.addConstraint(Sketcher.Constraint("Coincident", 3, 2, 0, 1))
sketch5.addConstraint(Sketcher.Constraint("Vertical", 0))
sketch5.addConstraint(Sketcher.Constraint("Horizontal", 1))
sketch5.addConstraint(Sketcher.Constraint("Vertical", 2))
sketch5.addConstraint(Sketcher.Constraint("Horizontal", 3))
sketch5.addConstraint(Sketcher.Constraint("Equal", 3, 0))
sketch5.addConstraint(Sketcher.Constraint("DistanceX", 1, 1, 1, 2, Q("20 mm")))
sketch5.addConstraint(Sketcher.Constraint("DistanceX", -1, 1, 0, 2, Q("260 mm")))
sketch5.addConstraint(Sketcher.Constraint("DistanceY", 0, 2, -1, 1, Q("10 mm")))
sketch5.setExpression("Constraints[9]", "Params.sketch5_width")
pad5 = body5.newObject("PartDesign::Pad", "Pad004")
pad5.Profile = sketch5
pad5.setExpression("Length", "Params.pad5_length")
body6 = doc.addObject("PartDesign::Body", "Body005")
body6.AllowCompound = True

# Sketch on XZ plane
sketch6 = body6.newObject("Sketcher::SketchObject", "Sketch005")
sketch6.AttachmentSupport = (doc.getObject("XZ_Plane005"), [""])
sketch6.MapMode = "FlatFace"
sketch6.AttachmentOffset = App.Placement(V(0, 0, 10), App.Rotation())
sketch6.addGeometry(Part.Circle(V(-270, 310, 0), V(0, 0, 1), 3.5), False)
sketch6.addGeometry(Part.Circle(V(-90, 310, 0), V(0, 0, 1), 3.5), False)
sketch6.addGeometry(Part.Circle(V(90, 310, 0), V(0, 0, 1), 3.5), False)
sketch6.addGeometry(Part.Circle(V(270, 310, 0), V(0, 0, 1), 3.5), False)
sketch6.addConstraint(Sketcher.Constraint("Equal", 0, 1))
sketch6.addConstraint(Sketcher.Constraint("Equal", 1, 2))
sketch6.addConstraint(Sketcher.Constraint("Equal", 2, 3))
sketch6.addConstraint(Sketcher.Constraint("Symmetric", 1, 3, 2, 3, -2))
sketch6.addConstraint(Sketcher.Constraint("Symmetric", 0, 3, 3, 3, -2))
sketch6.addConstraint(Sketcher.Constraint("Horizontal", 0, 3, 1, 3))
sketch6.addConstraint(Sketcher.Constraint("Diameter", 0, Q("7 mm")))
sketch6.addConstraint(Sketcher.Constraint("DistanceX", 0, 3, -1, 1, Q("270 mm")))
sketch6.addConstraint(Sketcher.Constraint("DistanceY", -1, 1, 0, 3, Q("310 mm")))
sketch6.addConstraint(Sketcher.Constraint("DistanceX", 1, 3, -1, 1, Q("90 mm")))
sketch6.setExpression("Constraints[6]", "Params.sketch6_diameter")
pad6 = body6.newObject("PartDesign::Pad", "Pad005")
pad6.Profile = sketch6
pad6.setExpression("Length", "Params.pad6_length")
pad6.Reversed = True
doc.recompute()

body7 = doc.addObject("PartDesign::Body", "Body006")
body7.BaseFeature = body6
boolean = body2.newObject("PartDesign::Boolean", "Boolean")
boolean.Type = "Cut"
boolean.addObjects([body7])
doc.recompute()

body8 = doc.addObject("PartDesign::Body", "Body007")
body8.BaseFeature = body6
boolean2 = body3.newObject("PartDesign::Boolean", "Boolean001")
boolean2.Type = "Cut"
boolean2.addObjects([body8])
doc.recompute()

body9 = doc.addObject("PartDesign::Body", "Body008")
body9.BaseFeature = body6
boolean3 = body4.newObject("PartDesign::Boolean", "Boolean002")
boolean3.Type = "Cut"
boolean3.addObjects([body9])
doc.recompute()

boolean4 = body5.newObject("PartDesign::Boolean", "Boolean003")
boolean4.Type = "Cut"
boolean4.addObjects([body6])
body10 = doc.addObject("PartDesign::Body", "Body009")

# Sketch on YZ plane
sketch7 = body10.newObject("Sketcher::SketchObject", "Sketch006")
sketch7.AttachmentSupport = (doc.getObject("YZ_Plane009"), [""])
sketch7.MapMode = "FlatFace"
sketch7.AttachmentOffset = App.Placement(V(0, 0, 280), App.Rotation())
sketch7.addGeometry(Part.LineSegment(V(2.5, 320, 0), V(-2.5, 320, 0)), False)
sketch7.addGeometry(Part.LineSegment(V(-2.5, 320, 0), V(-2.5, 270, 0)), False)
sketch7.addGeometry(Part.LineSegment(V(-2.5, 270, 0), V(2.5, 270, 0)), False)
sketch7.addGeometry(Part.LineSegment(V(2.5, 270, 0), V(2.5, 320, 0)), False)
sketch7.addConstraint(Sketcher.Constraint("Coincident", 0, 2, 1, 1))
sketch7.addConstraint(Sketcher.Constraint("Coincident", 1, 2, 2, 1))
sketch7.addConstraint(Sketcher.Constraint("Coincident", 2, 2, 3, 1))
sketch7.addConstraint(Sketcher.Constraint("Coincident", 3, 2, 0, 1))
sketch7.addConstraint(Sketcher.Constraint("Horizontal", 0))
sketch7.addConstraint(Sketcher.Constraint("Vertical", 1))
sketch7.addConstraint(Sketcher.Constraint("Horizontal", 2))
sketch7.addConstraint(Sketcher.Constraint("Vertical", 3))
sketch7.addConstraint(Sketcher.Constraint("DistanceX", 0, 2, 0, 1, Q("5 mm")))
sketch7.addConstraint(Sketcher.Constraint("DistanceY", 1, 2, 1, 1, Q("50 mm")))
sketch7.addConstraint(Sketcher.Constraint("DistanceY", -1, 1, 0, 2, Q("320 mm")))
sketch7.addConstraint(Sketcher.Constraint("DistanceX", 0, 2, -1, 1, Q("2.5 mm")))
sketch7.setExpression("Constraints[8]", "Params.sketch7_width")
sketch7.setExpression("Constraints[9]", "Params.sketch7_height")
pad7 = body10.newObject("PartDesign::Pad", "Pad006")
pad7.Profile = sketch7
pad7.setExpression("Length", "Params.pad7_length")
pad7.Reversed = True
doc.recompute()

body11 = doc.addObject("PartDesign::Body", "Body010")
body11.BaseFeature = body10
boolean5 = body2.newObject("PartDesign::Boolean", "Boolean004")
boolean5.Type = "Cut"
boolean5.addObjects([body11])
doc.recompute()

body12 = doc.addObject("PartDesign::Body", "Body011")
body12.BaseFeature = body10
boolean6 = body3.newObject("PartDesign::Boolean", "Boolean005")
boolean6.Type = "Cut"
boolean6.addObjects([body12])
doc.recompute()

body13 = doc.addObject("PartDesign::Body", "Body012")
body13.BaseFeature = body10
boolean7 = body4.newObject("PartDesign::Boolean", "Boolean006")
boolean7.Type = "Cut"
boolean7.addObjects([body13])
doc.recompute()

boolean8 = body5.newObject("PartDesign::Boolean", "Boolean007")
boolean8.Type = "Cut"
boolean8.addObjects([body10])

doc.recompute()
